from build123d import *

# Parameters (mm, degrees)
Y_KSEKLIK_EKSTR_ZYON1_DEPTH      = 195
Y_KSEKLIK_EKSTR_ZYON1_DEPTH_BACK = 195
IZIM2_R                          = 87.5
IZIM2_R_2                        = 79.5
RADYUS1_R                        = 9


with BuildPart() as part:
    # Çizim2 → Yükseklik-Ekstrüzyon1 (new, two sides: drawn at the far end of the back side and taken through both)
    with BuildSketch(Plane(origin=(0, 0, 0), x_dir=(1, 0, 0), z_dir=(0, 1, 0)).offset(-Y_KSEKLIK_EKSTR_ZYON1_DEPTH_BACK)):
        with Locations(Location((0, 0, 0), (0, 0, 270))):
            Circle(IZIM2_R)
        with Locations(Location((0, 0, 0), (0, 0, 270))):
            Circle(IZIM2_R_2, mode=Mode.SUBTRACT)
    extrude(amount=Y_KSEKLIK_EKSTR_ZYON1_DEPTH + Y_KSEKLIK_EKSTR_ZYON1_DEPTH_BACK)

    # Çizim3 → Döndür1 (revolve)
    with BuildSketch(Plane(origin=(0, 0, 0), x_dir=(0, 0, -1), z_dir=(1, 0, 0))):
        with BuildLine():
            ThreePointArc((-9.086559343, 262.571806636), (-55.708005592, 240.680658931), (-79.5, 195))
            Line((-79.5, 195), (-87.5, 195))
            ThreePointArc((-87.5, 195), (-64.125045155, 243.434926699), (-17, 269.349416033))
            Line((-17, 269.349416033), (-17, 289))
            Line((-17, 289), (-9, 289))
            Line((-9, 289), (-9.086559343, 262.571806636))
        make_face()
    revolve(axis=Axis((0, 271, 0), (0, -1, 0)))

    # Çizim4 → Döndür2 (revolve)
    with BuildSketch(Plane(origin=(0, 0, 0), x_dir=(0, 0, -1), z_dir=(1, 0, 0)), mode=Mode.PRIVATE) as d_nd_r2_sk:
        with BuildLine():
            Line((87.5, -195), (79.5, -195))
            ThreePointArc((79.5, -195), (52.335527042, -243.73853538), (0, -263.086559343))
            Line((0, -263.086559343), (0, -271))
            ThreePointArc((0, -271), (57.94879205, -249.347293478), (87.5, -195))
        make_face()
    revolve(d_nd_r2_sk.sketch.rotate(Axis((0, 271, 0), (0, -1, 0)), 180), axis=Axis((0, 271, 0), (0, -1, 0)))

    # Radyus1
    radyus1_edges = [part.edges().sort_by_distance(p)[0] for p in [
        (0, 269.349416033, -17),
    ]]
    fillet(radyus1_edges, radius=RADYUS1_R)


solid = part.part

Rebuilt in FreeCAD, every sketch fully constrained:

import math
import FreeCAD as App
import Part
import Sketcher

V = App.Vector
Q = App.Units.Quantity


def edges_at(feature, points):
    """Names of the edges that pass closest to the given points."""
    edges = feature.Shape.Edges
    near = lambda p: min(range(len(edges)), key=lambda i: edges[i].distToShape(Part.Vertex(*p))[0])
    return sorted({f"Edge{near(p) + 1}" for p in points})

doc = App.newDocument("Part")
body = doc.addObject("PartDesign::Body", "Body")

# Sketch on XZ plane
sketch1 = body.newObject("Sketcher::SketchObject", "Sketch")
sketch1.AttachmentSupport = (doc.getObject("XZ_Plane"), [""])
sketch1.MapMode = "FlatFace"
sketch1.addGeometry(Part.Circle(V(0, 0, 0), V(0, 0, 1), 88), False)
sketch1.addGeometry(Part.Circle(V(0, 0, 0), V(0, 0, 1), 80), False)
sketch1.addConstraint(Sketcher.Constraint("Coincident", 0, 3, -1, 1))
sketch1.addConstraint(Sketcher.Constraint("Coincident", 1, 3, -1, 1))
sketch1.addConstraint(Sketcher.Constraint("Diameter", 0, Q("175 mm")))
sketch1.addConstraint(Sketcher.Constraint("Diameter", 1, Q("159 mm")))
pad1 = body.newObject("PartDesign::Pad", "Pad")
pad1.Profile = sketch1
pad1.Type = "TwoLengths"
pad1.Length = 195
pad1.Length2 = 195
pad1.Reversed = True

# Sketch on YZ plane
sketch2 = body.newObject("Sketcher::SketchObject", "Sketch001")
sketch2.AttachmentSupport = (doc.getObject("YZ_Plane"), [""])
sketch2.MapMode = "FlatFace"
sketch2.addGeometry(Part.ArcOfCircle(Part.Circle(V(183, 0, 0), V(0, 0, 1), 80), math.radians(6), math.radians(81)), False)
sketch2.addGeometry(Part.LineSegment(V(263, 9, 0), V(289, 9, 0)), False)
sketch2.addGeometry(Part.LineSegment(V(289, 9, 0), V(289, 17, 0)), False)
sketch2.addGeometry(Part.LineSegment(V(289, 17, 0), V(269, 17, 0)), False)
sketch2.addGeometry(Part.ArcOfCircle(Part.Circle(V(183, 0, 0), V(0, 0, 1), 88), math.radians(11), math.radians(82)), False)
sketch2.addGeometry(Part.LineSegment(V(195, 88, 0), V(195, 80, 0)), False)
sketch2.addConstraint(Sketcher.Constraint("Coincident", 0, 1, 1, 1))
sketch2.addConstraint(Sketcher.Constraint("Coincident", 1, 2, 2, 1))
sketch2.addConstraint(Sketcher.Constraint("Coincident", 2, 2, 3, 1))
sketch2.addConstraint(Sketcher.Constraint("Coincident", 3, 2, 4, 1))
sketch2.addConstraint(Sketcher.Constraint("Coincident", 4, 2, 5, 1))
sketch2.addConstraint(Sketcher.Constraint("Coincident", 5, 2, 0, 2))
sketch2.addConstraint(Sketcher.Constraint("Vertical", 2))
sketch2.addConstraint(Sketcher.Constraint("Horizontal", 3))
sketch2.addConstraint(Sketcher.Constraint("Vertical", 5))
sketch2.addConstraint(Sketcher.Constraint("Coincident", 4, 3, 0, 3))
sketch2.addConstraint(Sketcher.Constraint("PointOnObject", 0, 3, -1))
sketch2.addConstraint(Sketcher.Constraint("Equal", 2, 5))
sketch2.addConstraint(Sketcher.Constraint("DistanceY", 2, 1, 2, 2, Q("8 mm")))
sketch2.addConstraint(Sketcher.Constraint("DistanceX", -1, 1, 1, 2, Q("289 mm")))
sketch2.addConstraint(Sketcher.Constraint("DistanceY", -1, 1, 1, 2, Q("9 mm")))
sketch2.addConstraint(Sketcher.Constraint("DistanceX", -1, 1, 4, 2, Q("195 mm")))
sketch2.addConstraint(Sketcher.Constraint("DistanceY", -1, 1, 4, 2, Q("87.5 mm")))
sketch2.addConstraint(Sketcher.Constraint("Radius", 0, Q("80.456625 mm")))
sketch2.addConstraint(Sketcher.Constraint("DistanceY", -1, 1, 0, 1, Q("9.086559 mm")))
revolution = body.newObject("PartDesign::Revolution", "Revolution")
revolution.Profile = sketch2
revolution.ReferenceAxis = (sketch2, ["H_Axis"])
revolution.Angle = 360

# Sketch on YZ plane
sketch3 = body.newObject("Sketcher::SketchObject", "Sketch002")
sketch3.AttachmentSupport = (doc.getObject("YZ_Plane"), [""])
sketch3.MapMode = "FlatFace"
sketch3.addGeometry(Part.LineSegment(V(-195, -88, 0), V(-195, -80, 0)), False)
sketch3.addGeometry(Part.ArcOfCircle(Part.Circle(V(-183, 0, 0), V(0, 0, 1), 80), math.radians(-180), math.radians(-99)), False)
sketch3.addGeometry(Part.LineSegment(V(-263, 0, 0), V(-271, 0, 0)), False)
sketch3.addGeometry(Part.ArcOfCircle(Part.Circle(V(-183, 0, 0), V(0, 0, 1), 88), math.radians(180), math.radians(262)), False)
sketch3.addConstraint(Sketcher.Constraint("Coincident", 0, 2, 1, 2))
sketch3.addConstraint(Sketcher.Constraint("Coincident", 1, 1, 2, 1))
sketch3.addConstraint(Sketcher.Constraint("Coincident", 2, 2, 3, 1))
sketch3.addConstraint(Sketcher.Constraint("Coincident", 3, 2, 0, 1))
sketch3.addConstraint(Sketcher.Constraint("Vertical", 0))
sketch3.addConstraint(Sketcher.Constraint("Horizontal", 2))
sketch3.addConstraint(Sketcher.Constraint("Coincident", 3, 3, 1, 3))
sketch3.addConstraint(Sketcher.Constraint("PointOnObject", 1, 3, -1))
sketch3.addConstraint(Sketcher.Constraint("PointOnObject", 1, 1, -1))
sketch3.addConstraint(Sketcher.Constraint("DistanceY", 0, 1, 0, 2, Q("8 mm")))
sketch3.addConstraint(Sketcher.Constraint("DistanceX", 0, 2, -1, 1, Q("195 mm")))
sketch3.addConstraint(Sketcher.Constraint("DistanceX", 2, 2, -1, 1, Q("271 mm")))
sketch3.addConstraint(Sketcher.Constraint("DistanceY", 0, 2, -1, 1, Q("79.5 mm")))
revolution2 = body.newObject("PartDesign::Revolution", "Revolution001")
revolution2.Profile = sketch3
revolution2.ReferenceAxis = (sketch3, ["H_Axis"])
revolution2.Angle = 360
doc.recompute()

fillet = body.newObject("PartDesign::Fillet", "Fillet")
fillet.Base = (revolution2, edges_at(revolution2, [(0, 269.349, -17)]))
fillet.Radius = 9

doc.recompute()
